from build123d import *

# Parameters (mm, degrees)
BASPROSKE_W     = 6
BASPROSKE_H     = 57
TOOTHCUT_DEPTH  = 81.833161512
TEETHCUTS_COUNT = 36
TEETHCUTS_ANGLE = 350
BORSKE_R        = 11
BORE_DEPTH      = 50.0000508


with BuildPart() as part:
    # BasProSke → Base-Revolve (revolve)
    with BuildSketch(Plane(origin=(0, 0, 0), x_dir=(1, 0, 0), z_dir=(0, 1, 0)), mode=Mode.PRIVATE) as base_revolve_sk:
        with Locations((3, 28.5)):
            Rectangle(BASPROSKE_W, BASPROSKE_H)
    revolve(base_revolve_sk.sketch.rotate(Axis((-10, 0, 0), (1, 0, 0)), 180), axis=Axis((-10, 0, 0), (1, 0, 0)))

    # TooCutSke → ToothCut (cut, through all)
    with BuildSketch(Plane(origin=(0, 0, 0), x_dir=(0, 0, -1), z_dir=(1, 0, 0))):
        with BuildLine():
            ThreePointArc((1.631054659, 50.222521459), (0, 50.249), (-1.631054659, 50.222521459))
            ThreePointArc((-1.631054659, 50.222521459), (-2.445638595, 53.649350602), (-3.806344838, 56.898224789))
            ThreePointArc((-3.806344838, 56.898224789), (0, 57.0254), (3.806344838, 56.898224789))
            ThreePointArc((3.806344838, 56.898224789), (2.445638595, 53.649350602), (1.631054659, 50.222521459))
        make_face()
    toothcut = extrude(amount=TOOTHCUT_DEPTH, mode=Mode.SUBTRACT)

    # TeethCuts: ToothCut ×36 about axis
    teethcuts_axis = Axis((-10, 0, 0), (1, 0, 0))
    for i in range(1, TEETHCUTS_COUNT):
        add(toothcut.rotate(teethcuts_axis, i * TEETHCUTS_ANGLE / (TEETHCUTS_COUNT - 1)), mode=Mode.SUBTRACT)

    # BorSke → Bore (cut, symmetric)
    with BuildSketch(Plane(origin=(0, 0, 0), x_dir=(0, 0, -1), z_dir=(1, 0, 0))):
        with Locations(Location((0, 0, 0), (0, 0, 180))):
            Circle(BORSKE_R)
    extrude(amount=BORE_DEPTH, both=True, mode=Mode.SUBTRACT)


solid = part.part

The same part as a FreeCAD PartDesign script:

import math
import FreeCAD as App
import Part
import Sketcher
from FreeCAD import Vector

doc = App.newDocument("Part")
body = doc.addObject("PartDesign::Body", "Body")

# Sketch on XZ plane
sketch1 = body.newObject("Sketcher::SketchObject", "Sketch")
sketch1.AttachmentSupport = (doc.getObject("XZ_Plane"), [""])
sketch1.MapMode = "FlatFace"
sketch1.addGeometry([
    Part.LineSegment(Vector(0, -57, 0), Vector(0, 0, 0)),
    Part.LineSegment(Vector(0, 0, 0), Vector(6, 0, 0)),
    Part.LineSegment(Vector(6, 0, 0), Vector(6, -57, 0)),
    Part.LineSegment(Vector(6, -57, 0), Vector(0, -57, 0)),
], False)
sketch1.addConstraint([
    Sketcher.Constraint("Coincident", 0, 2, 1, 1),
    Sketcher.Constraint("Coincident", 1, 2, 2, 1),
    Sketcher.Constraint("Coincident", 2, 2, 3, 1),
    Sketcher.Constraint("Coincident", 3, 2, 0, 1),
    Sketcher.Constraint("Vertical", 0),
    Sketcher.Constraint("Horizontal", 1),
    Sketcher.Constraint("Vertical", 2),
    Sketcher.Constraint("Horizontal", 3),
    Sketcher.Constraint("Coincident", 0, 2, -1, 1),
    Sketcher.Constraint("DistanceX", 1, 1, 1, 2, 6.0),
    Sketcher.Constraint("DistanceY", 0, 1, 0, 2, 57.0),
])
revolution = body.newObject("PartDesign::Revolution", "Revolution")
revolution.Profile = sketch1
revolution.ReferenceAxis = (sketch1, ["H_Axis"])
revolution.Angle = 360

# Sketch on YZ plane
sketch2 = body.newObject("Sketcher::SketchObject", "Sketch001")
sketch2.AttachmentSupport = (doc.getObject("YZ_Plane"), [""])
sketch2.MapMode = "FlatFace"
sketch2.addGeometry([
    Part.ArcOfCircle(Part.Circle(Vector(0, 0, 0), Vector(0, 0, 1), 50.2), math.radians(-1.86), math.radians(1.86)),
    Part.ArcOfCircle(Part.Circle(Vector(47, -23, 0), Vector(0, 0, 1), 21.6), math.radians(62.6), math.radians(81.31)),
    Part.ArcOfCircle(Part.Circle(Vector(0, 0, 0), Vector(0, 0, 1), 57), math.radians(-3.83), math.radians(3.83)),
    Part.ArcOfCircle(Part.Circle(Vector(47, 23, 0), Vector(0, 0, 1), 21.6), math.radians(-81.31), math.radians(-62.6)),
], False)
sketch2.addConstraint([
    Sketcher.Constraint("Coincident", 0, 1, 1, 2),
    Sketcher.Constraint("Coincident", 1, 1, 2, 1),
    Sketcher.Constraint("Coincident", 2, 2, 3, 2),
    Sketcher.Constraint("Coincident", 3, 1, 0, 2),
    Sketcher.Constraint("Coincident", 0, 3, -1, 1),
    Sketcher.Constraint("Coincident", 2, 3, -1, 1),
    Sketcher.Constraint("Equal", 1, 3),
    Sketcher.Constraint("Symmetric", 1, 3, 3, 3, -1),
    Sketcher.Constraint("Radius", 1, 21.6),
    Sketcher.Constraint("Radius", 0, 50.249),
    Sketcher.Constraint("Radius", 2, 57.0254),
    Sketcher.Constraint("DistanceY", 0, 1, 2, 2, 5.437399),
    Sketcher.Constraint("DistanceX", -1, 1, 1, 3, 46.95727),
])
pocket1 = body.newObject("PartDesign::Pocket", "Pocket")
pocket1.Profile = sketch2
pocket1.Type = "ThroughAll"
pocket1.Reversed = True
doc.recompute()

polarpattern = body.newObject("PartDesign::PolarPattern", "PolarPattern")
polarpattern.Originals = [pocket1]
polarpattern.Axis = (doc.getObject("X_Axis"), [""])
polarpattern.Angle = 360
polarpattern.Occurrences = 36
body.Tip = polarpattern

# Sketch on YZ plane
sketch3 = body.newObject("Sketcher::SketchObject", "Sketch002")
sketch3.AttachmentSupport = (doc.getObject("YZ_Plane"), [""])
sketch3.MapMode = "FlatFace"
sketch3.addGeometry(Part.Circle(Vector(0, 0, 0), Vector(0, 0, 1), 11), False)
sketch3.addConstraint([
    Sketcher.Constraint("Coincident", 0, 3, -1, 1),
    Sketcher.Constraint("Diameter", 0, 22.0),
])
pocket2 = body.newObject("PartDesign::Pocket", "Pocket001")
pocket2.Profile = sketch3
pocket2.Length = 100.000102
pocket2.Midplane = True

doc.recompute()
